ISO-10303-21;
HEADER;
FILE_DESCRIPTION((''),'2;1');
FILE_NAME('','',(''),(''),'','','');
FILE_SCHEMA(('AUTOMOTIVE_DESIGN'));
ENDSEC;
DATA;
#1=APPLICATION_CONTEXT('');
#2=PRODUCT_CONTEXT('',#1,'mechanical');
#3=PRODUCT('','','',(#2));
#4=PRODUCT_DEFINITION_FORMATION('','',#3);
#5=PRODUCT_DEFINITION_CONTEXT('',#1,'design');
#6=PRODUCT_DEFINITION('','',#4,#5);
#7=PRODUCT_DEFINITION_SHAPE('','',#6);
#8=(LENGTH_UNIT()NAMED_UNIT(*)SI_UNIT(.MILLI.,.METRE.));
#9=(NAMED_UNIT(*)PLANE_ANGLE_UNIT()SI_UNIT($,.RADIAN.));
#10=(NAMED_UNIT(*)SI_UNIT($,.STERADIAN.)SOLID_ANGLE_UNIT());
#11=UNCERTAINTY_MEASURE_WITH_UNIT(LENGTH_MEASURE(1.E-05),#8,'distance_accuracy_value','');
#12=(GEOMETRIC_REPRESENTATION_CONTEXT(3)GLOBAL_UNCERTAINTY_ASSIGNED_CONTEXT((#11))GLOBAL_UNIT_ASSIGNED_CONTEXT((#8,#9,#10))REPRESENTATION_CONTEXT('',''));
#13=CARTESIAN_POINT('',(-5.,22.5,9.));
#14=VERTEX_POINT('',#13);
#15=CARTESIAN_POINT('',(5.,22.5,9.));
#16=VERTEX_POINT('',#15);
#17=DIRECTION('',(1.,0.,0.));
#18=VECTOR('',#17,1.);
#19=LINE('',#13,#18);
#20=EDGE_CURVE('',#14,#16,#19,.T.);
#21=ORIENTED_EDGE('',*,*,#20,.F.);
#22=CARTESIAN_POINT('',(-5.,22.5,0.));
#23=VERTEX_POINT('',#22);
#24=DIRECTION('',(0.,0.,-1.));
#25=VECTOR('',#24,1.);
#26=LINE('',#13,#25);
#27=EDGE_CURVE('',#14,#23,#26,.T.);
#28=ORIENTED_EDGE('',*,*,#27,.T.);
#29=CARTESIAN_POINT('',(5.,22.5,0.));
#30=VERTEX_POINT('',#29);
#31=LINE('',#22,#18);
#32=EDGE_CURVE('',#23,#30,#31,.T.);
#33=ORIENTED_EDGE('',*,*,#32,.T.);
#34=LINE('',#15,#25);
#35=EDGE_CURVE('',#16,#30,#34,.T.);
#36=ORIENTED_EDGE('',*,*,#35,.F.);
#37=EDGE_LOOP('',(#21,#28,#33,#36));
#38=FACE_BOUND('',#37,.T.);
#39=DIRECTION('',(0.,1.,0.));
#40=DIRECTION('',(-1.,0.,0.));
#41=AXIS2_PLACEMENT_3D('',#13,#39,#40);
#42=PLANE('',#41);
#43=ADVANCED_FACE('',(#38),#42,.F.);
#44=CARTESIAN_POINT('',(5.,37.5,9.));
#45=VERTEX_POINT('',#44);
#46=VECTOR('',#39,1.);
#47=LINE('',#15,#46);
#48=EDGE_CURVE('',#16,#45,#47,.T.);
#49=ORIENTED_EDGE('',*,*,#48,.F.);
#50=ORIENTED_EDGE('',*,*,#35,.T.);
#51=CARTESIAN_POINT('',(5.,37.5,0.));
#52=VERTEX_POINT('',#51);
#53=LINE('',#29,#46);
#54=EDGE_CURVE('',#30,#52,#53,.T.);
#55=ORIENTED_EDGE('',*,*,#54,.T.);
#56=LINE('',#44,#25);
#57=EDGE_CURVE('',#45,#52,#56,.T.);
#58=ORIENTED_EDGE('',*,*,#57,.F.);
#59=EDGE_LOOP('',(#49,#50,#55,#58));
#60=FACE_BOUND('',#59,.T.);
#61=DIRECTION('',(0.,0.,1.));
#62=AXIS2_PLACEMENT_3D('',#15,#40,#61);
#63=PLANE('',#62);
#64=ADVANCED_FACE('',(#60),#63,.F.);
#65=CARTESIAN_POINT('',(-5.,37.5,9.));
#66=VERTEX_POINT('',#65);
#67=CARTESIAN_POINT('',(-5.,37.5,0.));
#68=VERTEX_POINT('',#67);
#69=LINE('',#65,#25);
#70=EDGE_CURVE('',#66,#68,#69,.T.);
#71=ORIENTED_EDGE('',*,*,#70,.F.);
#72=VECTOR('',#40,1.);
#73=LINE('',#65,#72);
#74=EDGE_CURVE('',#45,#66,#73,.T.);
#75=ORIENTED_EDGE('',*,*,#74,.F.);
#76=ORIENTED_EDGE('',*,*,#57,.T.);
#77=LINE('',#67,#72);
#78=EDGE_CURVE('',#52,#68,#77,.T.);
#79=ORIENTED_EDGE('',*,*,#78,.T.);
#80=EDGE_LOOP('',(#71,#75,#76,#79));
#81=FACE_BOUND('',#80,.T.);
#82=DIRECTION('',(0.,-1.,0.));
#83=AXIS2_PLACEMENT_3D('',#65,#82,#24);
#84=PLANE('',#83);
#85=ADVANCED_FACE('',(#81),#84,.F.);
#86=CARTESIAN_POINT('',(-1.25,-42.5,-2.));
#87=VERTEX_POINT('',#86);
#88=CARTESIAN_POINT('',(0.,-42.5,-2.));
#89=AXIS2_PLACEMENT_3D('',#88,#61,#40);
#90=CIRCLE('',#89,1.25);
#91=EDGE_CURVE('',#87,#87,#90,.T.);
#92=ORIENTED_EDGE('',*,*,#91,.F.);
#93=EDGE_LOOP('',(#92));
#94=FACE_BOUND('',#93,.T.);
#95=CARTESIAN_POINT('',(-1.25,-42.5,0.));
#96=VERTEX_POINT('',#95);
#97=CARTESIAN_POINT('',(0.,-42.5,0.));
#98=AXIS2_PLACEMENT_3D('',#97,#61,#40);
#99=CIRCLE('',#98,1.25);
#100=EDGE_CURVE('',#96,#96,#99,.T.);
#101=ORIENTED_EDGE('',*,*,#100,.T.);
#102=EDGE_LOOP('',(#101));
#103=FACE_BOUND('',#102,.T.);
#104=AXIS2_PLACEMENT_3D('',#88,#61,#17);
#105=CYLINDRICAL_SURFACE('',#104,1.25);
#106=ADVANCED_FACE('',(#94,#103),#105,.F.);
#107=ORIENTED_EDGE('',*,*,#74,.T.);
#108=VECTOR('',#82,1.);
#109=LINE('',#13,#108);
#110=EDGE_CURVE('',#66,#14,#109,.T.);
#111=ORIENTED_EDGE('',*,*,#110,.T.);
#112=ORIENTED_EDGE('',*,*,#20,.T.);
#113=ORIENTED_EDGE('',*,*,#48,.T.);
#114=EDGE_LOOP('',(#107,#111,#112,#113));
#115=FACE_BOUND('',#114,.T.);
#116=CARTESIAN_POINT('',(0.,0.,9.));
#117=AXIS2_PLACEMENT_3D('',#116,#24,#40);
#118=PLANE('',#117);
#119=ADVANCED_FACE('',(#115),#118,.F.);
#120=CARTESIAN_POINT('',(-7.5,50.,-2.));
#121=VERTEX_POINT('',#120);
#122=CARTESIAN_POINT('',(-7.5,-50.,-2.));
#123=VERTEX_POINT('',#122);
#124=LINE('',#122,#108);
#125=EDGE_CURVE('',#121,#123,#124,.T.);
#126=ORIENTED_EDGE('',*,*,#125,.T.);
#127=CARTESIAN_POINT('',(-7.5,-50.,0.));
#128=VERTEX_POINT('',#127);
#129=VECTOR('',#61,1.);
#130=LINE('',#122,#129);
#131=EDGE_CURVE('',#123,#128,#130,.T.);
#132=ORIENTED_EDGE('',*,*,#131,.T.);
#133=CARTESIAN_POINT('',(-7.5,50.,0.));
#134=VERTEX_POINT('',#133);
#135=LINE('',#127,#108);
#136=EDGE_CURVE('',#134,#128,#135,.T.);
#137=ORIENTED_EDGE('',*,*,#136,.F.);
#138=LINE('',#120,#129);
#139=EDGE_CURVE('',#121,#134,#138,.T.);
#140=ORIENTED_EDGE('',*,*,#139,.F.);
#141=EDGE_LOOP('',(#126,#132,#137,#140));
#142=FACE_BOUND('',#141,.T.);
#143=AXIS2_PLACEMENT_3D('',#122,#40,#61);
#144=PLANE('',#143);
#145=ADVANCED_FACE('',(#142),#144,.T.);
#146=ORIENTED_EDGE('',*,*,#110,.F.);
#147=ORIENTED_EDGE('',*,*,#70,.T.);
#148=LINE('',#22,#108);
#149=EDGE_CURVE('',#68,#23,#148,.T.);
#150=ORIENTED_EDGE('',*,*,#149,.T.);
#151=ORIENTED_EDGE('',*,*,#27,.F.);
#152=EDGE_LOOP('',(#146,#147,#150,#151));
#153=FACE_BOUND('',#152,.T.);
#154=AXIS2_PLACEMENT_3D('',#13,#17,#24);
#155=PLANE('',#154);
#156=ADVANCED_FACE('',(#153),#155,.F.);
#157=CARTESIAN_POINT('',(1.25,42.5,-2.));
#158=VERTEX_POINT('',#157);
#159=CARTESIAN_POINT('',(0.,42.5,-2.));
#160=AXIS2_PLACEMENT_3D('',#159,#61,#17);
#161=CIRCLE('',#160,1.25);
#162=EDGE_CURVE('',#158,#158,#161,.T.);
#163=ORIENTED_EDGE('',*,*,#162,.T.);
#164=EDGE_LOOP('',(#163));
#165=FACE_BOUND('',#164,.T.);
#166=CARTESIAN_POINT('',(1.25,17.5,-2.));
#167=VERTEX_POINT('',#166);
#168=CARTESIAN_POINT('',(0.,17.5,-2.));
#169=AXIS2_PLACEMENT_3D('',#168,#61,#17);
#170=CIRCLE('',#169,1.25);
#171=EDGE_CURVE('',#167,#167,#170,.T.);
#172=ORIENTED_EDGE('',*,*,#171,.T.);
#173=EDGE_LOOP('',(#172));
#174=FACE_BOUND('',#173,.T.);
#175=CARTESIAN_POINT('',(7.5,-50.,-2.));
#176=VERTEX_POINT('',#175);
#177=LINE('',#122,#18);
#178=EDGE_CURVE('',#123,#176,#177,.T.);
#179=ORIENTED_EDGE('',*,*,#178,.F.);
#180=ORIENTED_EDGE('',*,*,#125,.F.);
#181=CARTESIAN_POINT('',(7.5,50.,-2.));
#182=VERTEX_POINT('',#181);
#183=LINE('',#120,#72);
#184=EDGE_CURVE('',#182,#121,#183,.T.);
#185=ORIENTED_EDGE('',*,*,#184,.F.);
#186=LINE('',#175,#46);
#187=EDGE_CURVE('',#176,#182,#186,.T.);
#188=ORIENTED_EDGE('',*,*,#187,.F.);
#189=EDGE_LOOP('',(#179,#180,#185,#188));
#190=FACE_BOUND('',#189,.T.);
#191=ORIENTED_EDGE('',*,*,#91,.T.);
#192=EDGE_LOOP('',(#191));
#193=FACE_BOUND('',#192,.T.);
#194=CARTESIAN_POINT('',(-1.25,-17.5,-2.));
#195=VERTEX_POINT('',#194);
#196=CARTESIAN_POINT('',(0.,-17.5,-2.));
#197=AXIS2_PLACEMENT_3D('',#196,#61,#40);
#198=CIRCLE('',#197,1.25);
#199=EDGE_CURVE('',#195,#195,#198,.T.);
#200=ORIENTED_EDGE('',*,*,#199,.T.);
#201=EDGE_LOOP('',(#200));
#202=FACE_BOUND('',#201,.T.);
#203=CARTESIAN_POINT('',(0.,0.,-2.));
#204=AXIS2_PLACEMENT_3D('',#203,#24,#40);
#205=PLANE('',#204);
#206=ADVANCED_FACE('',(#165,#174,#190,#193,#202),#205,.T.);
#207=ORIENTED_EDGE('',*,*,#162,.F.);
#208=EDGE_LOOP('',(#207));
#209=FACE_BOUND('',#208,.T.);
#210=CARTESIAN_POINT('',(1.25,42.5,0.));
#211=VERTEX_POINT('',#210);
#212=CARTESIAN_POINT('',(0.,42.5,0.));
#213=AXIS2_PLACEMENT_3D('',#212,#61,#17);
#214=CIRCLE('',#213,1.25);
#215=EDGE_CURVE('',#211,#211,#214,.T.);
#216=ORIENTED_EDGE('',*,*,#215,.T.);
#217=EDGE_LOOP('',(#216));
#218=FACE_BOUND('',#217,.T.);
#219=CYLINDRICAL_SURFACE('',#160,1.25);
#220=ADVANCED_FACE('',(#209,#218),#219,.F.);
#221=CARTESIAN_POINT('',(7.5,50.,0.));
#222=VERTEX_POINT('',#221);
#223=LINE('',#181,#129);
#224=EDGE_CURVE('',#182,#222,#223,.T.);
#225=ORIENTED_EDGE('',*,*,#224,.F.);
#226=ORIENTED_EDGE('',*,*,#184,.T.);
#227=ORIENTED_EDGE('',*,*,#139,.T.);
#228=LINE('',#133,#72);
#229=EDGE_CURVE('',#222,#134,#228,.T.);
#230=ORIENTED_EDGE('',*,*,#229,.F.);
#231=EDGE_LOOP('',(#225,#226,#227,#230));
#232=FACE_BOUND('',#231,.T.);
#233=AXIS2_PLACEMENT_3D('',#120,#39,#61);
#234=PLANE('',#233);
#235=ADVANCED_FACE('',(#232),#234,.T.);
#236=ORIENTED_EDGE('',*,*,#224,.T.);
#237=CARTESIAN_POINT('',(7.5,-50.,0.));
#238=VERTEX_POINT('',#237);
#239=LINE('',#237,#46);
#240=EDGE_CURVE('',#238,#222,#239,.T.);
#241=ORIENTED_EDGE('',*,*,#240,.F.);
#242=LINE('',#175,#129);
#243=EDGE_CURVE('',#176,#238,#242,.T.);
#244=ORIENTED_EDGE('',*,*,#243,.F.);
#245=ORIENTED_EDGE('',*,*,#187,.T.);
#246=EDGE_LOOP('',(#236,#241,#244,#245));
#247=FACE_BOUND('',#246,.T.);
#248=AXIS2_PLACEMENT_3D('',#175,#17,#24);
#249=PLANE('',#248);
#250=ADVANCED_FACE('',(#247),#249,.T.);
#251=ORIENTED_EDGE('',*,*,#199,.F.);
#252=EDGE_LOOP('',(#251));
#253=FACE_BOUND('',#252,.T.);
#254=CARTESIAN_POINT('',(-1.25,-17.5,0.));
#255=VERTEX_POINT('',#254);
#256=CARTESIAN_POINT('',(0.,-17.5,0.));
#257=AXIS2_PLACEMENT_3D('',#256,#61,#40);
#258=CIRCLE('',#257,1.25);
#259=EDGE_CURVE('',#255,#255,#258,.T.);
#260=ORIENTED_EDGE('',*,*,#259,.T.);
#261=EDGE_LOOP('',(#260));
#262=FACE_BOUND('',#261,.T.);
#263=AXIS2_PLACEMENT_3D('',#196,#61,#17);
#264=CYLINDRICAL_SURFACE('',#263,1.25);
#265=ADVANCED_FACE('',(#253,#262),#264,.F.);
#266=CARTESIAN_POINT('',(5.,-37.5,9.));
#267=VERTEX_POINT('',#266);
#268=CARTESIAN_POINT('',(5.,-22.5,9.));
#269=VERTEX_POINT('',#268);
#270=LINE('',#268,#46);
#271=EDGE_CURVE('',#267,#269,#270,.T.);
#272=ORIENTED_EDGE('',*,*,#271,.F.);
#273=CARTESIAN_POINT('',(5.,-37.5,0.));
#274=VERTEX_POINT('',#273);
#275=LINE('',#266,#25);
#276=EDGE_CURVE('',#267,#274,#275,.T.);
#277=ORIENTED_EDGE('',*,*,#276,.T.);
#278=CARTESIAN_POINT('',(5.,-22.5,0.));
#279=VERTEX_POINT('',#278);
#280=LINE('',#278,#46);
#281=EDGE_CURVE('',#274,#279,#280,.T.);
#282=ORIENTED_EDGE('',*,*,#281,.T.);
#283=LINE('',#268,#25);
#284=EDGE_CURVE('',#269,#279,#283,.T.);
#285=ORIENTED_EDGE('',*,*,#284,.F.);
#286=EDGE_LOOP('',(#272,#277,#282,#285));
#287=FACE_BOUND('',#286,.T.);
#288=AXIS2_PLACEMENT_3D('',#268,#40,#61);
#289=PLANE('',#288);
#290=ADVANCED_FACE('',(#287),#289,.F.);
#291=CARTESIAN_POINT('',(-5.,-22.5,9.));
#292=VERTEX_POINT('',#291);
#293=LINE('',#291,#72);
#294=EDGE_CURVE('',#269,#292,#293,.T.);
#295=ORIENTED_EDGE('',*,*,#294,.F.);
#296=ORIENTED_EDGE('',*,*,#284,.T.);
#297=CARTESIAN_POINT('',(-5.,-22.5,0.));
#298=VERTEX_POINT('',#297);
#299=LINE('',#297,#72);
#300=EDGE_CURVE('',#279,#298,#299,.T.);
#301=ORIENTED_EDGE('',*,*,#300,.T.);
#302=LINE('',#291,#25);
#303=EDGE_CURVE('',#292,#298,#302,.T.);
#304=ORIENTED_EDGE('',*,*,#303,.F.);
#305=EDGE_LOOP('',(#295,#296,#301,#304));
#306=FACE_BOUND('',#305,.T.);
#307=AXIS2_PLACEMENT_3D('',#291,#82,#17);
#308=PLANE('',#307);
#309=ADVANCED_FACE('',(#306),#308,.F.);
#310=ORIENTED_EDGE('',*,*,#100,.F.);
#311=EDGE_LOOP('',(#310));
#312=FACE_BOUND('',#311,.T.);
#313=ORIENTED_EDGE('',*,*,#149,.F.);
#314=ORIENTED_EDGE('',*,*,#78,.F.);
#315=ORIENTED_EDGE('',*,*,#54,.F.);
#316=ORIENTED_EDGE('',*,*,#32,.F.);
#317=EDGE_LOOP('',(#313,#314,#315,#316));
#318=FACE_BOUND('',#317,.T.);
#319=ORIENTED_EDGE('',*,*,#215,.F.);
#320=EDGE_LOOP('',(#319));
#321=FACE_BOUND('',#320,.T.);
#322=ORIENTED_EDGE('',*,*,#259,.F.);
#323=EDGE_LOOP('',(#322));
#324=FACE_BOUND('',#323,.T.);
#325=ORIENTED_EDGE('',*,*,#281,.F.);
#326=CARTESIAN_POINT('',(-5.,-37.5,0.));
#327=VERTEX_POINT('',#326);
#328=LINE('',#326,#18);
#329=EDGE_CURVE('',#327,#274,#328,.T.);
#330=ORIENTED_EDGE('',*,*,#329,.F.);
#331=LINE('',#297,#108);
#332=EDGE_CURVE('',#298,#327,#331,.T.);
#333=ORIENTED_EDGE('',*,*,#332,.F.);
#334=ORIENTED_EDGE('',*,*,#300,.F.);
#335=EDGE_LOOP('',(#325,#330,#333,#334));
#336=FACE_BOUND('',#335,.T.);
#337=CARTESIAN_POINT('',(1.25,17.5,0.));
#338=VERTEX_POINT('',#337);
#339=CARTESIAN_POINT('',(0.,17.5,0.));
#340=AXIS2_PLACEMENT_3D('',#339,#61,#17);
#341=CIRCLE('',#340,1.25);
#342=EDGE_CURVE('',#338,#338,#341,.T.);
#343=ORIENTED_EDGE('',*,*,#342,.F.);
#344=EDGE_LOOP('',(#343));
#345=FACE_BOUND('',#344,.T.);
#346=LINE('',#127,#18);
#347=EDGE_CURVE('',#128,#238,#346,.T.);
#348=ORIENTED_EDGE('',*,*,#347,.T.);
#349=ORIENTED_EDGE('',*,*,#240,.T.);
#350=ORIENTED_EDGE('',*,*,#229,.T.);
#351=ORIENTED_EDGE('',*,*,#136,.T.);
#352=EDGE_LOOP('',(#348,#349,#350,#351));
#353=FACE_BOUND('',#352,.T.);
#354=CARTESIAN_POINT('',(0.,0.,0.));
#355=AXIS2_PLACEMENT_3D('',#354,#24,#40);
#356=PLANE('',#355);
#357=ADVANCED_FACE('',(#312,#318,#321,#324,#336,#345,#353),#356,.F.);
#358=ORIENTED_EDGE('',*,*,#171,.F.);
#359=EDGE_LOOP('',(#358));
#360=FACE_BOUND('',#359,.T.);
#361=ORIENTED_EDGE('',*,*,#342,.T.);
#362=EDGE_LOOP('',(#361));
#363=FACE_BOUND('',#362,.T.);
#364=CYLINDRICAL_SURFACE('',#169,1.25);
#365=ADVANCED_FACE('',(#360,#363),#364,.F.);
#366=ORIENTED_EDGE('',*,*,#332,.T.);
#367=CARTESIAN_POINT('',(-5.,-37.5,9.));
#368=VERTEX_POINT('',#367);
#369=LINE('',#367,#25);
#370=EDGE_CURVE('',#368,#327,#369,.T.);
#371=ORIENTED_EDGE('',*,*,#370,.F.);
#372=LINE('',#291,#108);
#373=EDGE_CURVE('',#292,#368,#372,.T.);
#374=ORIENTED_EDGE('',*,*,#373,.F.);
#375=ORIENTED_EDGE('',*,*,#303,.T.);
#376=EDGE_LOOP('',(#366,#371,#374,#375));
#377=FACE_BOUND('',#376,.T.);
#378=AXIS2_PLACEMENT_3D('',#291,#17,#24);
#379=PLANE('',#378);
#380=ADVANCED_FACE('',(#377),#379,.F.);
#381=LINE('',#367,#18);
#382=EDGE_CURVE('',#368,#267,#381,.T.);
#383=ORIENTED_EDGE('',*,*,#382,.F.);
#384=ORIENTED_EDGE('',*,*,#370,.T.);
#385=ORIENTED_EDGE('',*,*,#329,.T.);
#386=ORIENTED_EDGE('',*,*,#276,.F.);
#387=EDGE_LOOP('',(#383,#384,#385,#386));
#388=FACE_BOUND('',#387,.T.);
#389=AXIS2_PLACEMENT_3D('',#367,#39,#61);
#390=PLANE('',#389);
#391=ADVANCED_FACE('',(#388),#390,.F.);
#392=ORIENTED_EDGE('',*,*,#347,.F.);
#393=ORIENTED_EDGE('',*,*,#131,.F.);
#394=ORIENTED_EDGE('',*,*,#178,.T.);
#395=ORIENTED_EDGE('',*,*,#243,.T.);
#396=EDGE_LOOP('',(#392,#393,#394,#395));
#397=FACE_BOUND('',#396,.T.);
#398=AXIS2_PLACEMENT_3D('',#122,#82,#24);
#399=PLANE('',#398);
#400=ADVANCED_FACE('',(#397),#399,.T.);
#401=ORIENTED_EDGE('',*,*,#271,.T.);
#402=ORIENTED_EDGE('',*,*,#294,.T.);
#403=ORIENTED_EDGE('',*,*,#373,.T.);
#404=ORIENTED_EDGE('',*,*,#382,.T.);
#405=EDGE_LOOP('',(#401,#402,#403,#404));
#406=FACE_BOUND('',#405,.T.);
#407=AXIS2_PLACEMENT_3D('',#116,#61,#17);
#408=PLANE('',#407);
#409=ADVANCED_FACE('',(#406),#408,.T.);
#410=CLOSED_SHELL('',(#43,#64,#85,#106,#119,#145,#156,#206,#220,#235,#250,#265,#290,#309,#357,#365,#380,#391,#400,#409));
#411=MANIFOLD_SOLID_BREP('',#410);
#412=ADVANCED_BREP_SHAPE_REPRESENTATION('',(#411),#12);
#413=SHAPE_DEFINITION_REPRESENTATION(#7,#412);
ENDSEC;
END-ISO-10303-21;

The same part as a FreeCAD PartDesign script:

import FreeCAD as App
import Part
import Sketcher
from FreeCAD import Vector

doc = App.newDocument("Part")
body = doc.addObject("PartDesign::Body", "Body")

sketch1 = body.newObject("Sketcher::SketchObject", "Sketch")
sketch1.AttachmentSupport = (doc.getObject("XY_Plane"), [""])
sketch1.MapMode = "FlatFace"
sketch1.addGeometry([
    Part.LineSegment(Vector(-7.5, 50, 0), Vector(-7.5, -50, 0)),
    Part.LineSegment(Vector(-7.5, -50, 0), Vector(7.5, -50, 0)),
    Part.LineSegment(Vector(7.5, -50, 0), Vector(7.5, 50, 0)),
    Part.LineSegment(Vector(7.5, 50, 0), Vector(-7.5, 50, 0)),
    Part.Circle(Vector(0, -42.5, 0), Vector(0, 0, 1), 1.25),
    Part.Circle(Vector(0, -17.5, 0), Vector(0, 0, 1), 1.25),
    Part.Circle(Vector(0, 17.5, 0), Vector(0, 0, 1), 1.25),
    Part.Circle(Vector(0, 42.5, 0), Vector(0, 0, 1), 1.25),
], False)
sketch1.addConstraint([
    Sketcher.Constraint("Coincident", 0, 2, 1, 1),
    Sketcher.Constraint("Coincident", 1, 2, 2, 1),
    Sketcher.Constraint("Coincident", 2, 2, 3, 1),
    Sketcher.Constraint("Coincident", 3, 2, 0, 1),
    Sketcher.Constraint("Vertical", 0),
    Sketcher.Constraint("Horizontal", 1),
    Sketcher.Constraint("Vertical", 2),
    Sketcher.Constraint("Horizontal", 3),
    Sketcher.Constraint("Equal", 4, 5),
    Sketcher.Constraint("Equal", 5, 6),
    Sketcher.Constraint("Equal", 6, 7),
    Sketcher.Constraint("Symmetric", 5, 3, 6, 3, -1, 1),
    Sketcher.Constraint("Symmetric", 4, 3, 7, 3, -1, 1),
    Sketcher.Constraint("Symmetric", 0, 2, 2, 2, -1, 1),
    Sketcher.Constraint("PointOnObject", 4, 3, -2),
    Sketcher.Constraint("PointOnObject", 5, 3, -2),
    Sketcher.Constraint("Diameter", 4, 2.5),
    Sketcher.Constraint("DistanceX", 1, 1, 1, 2, 15.0),
    Sketcher.Constraint("DistanceY", 0, 2, 0, 1, 100.0),
    Sketcher.Constraint("DistanceY", 4, 3, 5, 3, 25.0),
    Sketcher.Constraint("DistanceY", 5, 3, 6, 3, 35.0),
])
pad1 = body.newObject("PartDesign::Pad", "Pad")
pad1.Profile = sketch1
pad1.Length = 2
pad1.Reversed = True

sketch2 = body.newObject("Sketcher::SketchObject", "Sketch001")
sketch2.AttachmentSupport = (doc.getObject("XY_Plane"), [""])
sketch2.MapMode = "FlatFace"
sketch2.addGeometry([
    Part.LineSegment(Vector(-5, 37.5, 0), Vector(-5, 22.5, 0)),
    Part.LineSegment(Vector(-5, 22.5, 0), Vector(5, 22.5, 0)),
    Part.LineSegment(Vector(5, 22.5, 0), Vector(5, 37.5, 0)),
    Part.LineSegment(Vector(5, 37.5, 0), Vector(-5, 37.5, 0)),
    Part.LineSegment(Vector(-5, -22.5, 0), Vector(-5, -37.5, 0)),
    Part.LineSegment(Vector(-5, -37.5, 0), Vector(5, -37.5, 0)),
    Part.LineSegment(Vector(5, -37.5, 0), Vector(5, -22.5, 0)),
    Part.LineSegment(Vector(5, -22.5, 0), Vector(-5, -22.5, 0)),
], False)
sketch2.addConstraint([
    Sketcher.Constraint("Coincident", 0, 2, 1, 1),
    Sketcher.Constraint("Coincident", 1, 2, 2, 1),
    Sketcher.Constraint("Coincident", 2, 2, 3, 1),
    Sketcher.Constraint("Coincident", 3, 2, 0, 1),
    Sketcher.Constraint("Coincident", 4, 2, 5, 1),
    Sketcher.Constraint("Coincident", 5, 2, 6, 1),
    Sketcher.Constraint("Coincident", 6, 2, 7, 1),
    Sketcher.Constraint("Coincident", 7, 2, 4, 1),
    Sketcher.Constraint("Vertical", 0),
    Sketcher.Constraint("Horizontal", 1),
    Sketcher.Constraint("Vertical", 2),
    Sketcher.Constraint("Horizontal", 3),
    Sketcher.Constraint("Vertical", 4),
    Sketcher.Constraint("Horizontal", 5),
    Sketcher.Constraint("Vertical", 6),
    Sketcher.Constraint("Horizontal", 7),
    Sketcher.Constraint("Symmetric", 2, 2, 4, 2, -1, 1),
    Sketcher.Constraint("Symmetric", 0, 2, 6, 2, -1, 1),
    Sketcher.Constraint("Vertical", 3, 2, 4, 2),
    Sketcher.Constraint("DistanceX", 1, 1, 1, 2, 10.0),
    Sketcher.Constraint("DistanceY", 0, 2, 0, 1, 15.0),
    Sketcher.Constraint("DistanceY", 4, 2, 0, 2, 60.0),
])
pad2 = body.newObject("PartDesign::Pad", "Pad001")
pad2.Profile = sketch2
pad2.Length = 9

doc.recompute()
